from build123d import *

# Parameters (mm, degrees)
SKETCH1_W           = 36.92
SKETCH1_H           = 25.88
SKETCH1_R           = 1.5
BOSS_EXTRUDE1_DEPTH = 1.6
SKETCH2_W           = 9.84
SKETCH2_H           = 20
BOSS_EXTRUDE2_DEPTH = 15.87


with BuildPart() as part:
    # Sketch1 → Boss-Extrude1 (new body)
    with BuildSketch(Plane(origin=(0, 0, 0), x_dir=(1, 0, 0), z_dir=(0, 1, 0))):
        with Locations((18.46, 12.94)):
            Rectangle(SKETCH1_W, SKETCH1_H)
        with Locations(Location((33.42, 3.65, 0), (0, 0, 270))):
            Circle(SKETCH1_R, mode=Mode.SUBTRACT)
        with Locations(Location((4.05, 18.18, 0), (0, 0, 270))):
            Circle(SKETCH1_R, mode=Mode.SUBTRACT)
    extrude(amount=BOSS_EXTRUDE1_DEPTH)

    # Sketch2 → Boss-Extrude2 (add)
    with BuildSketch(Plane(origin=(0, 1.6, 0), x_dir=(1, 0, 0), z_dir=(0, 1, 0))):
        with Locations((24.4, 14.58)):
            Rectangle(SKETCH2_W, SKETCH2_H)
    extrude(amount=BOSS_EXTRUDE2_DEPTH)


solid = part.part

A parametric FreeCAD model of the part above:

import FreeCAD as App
import Part
import Sketcher
from FreeCAD import Vector
Q = App.Units.Quantity

doc = App.newDocument("Part")
body = doc.addObject("PartDesign::Body", "Body")

# Sketch on XZ plane
sketch1 = body.newObject("Sketcher::SketchObject", "Sketch")
sketch1.AttachmentSupport = (doc.getObject("XZ_Plane"), [""])
sketch1.MapMode = "FlatFace"
sketch1.addGeometry([
    Part.LineSegment(Vector(0, -25.9, 0), Vector(0, 0, 0)),  # 0
    Part.LineSegment(Vector(0, 0, 0), Vector(36.9, 0, 0)),  # 1
    Part.LineSegment(Vector(36.9, 0, 0), Vector(36.9, -25.9, 0)),  # 2
    Part.LineSegment(Vector(36.9, -25.9, 0), Vector(0, -25.9, 0)),  # 3
    Part.Circle(Vector(33.4, -3.6, 0), Vector(0, 0, 1), 1.5),  # 4
    Part.Circle(Vector(4, -18.2, 0), Vector(0, 0, 1), 1.5),  # 5
], False)
sketch1.addConstraint([
    Sketcher.Constraint("Coincident", 0, 2, 1, 1),
    Sketcher.Constraint("Coincident", 1, 2, 2, 1),
    Sketcher.Constraint("Coincident", 2, 2, 3, 1),
    Sketcher.Constraint("Coincident", 3, 2, 0, 1),
    Sketcher.Constraint("Vertical", 0),
    Sketcher.Constraint("Horizontal", 1),
    Sketcher.Constraint("Vertical", 2),
    Sketcher.Constraint("Horizontal", 3),
    Sketcher.Constraint("Coincident", 0, 2, -1, 1),
    Sketcher.Constraint("Equal", 4, 5),
    Sketcher.Constraint("Diameter", 4, Q("3 mm")),
    Sketcher.Constraint("DistanceX", 1, 1, 1, 2, Q("36.92 mm")),
    Sketcher.Constraint("DistanceY", 0, 1, 0, 2, Q("25.88 mm")),
    Sketcher.Constraint("DistanceX", 4, 3, 1, 2, Q("3.5 mm")),
    Sketcher.Constraint("DistanceY", 2, 2, 5, 3, Q("7.7 mm")),
    Sketcher.Constraint("DistanceY", 4, 3, -1, 1, Q("3.65 mm")),
    Sketcher.Constraint("DistanceX", -1, 1, 5, 3, Q("4.05 mm")),
])
pad1 = body.newObject("PartDesign::Pad", "Pad")
pad1.Profile = sketch1
pad1.Length = 1.6
pad1.Reversed = True

# Sketch on XZ plane
sketch2 = body.newObject("Sketcher::SketchObject", "Sketch001")
sketch2.AttachmentSupport = (doc.getObject("XZ_Plane"), [""])
sketch2.MapMode = "FlatFace"
sketch2.AttachmentOffset = App.Placement(Vector(0, 0, -1.6), App.Rotation())
sketch2.addGeometry([
    Part.LineSegment(Vector(19, -25, 0), Vector(19, -5, 0)),
    Part.LineSegment(Vector(19, -5, 0), Vector(29, -5, 0)),
    Part.LineSegment(Vector(29, -5, 0), Vector(29, -25, 0)),
    Part.LineSegment(Vector(29, -25, 0), Vector(19, -25, 0)),
], False)
sketch2.addConstraint([
    Sketcher.Constraint("Coincident", 0, 2, 1, 1),
    Sketcher.Constraint("Coincident", 1, 2, 2, 1),
    Sketcher.Constraint("Coincident", 2, 2, 3, 1),
    Sketcher.Constraint("Coincident", 3, 2, 0, 1),
    Sketcher.Constraint("Vertical", 0),
    Sketcher.Constraint("Horizontal", 1),
    Sketcher.Constraint("Vertical", 2),
    Sketcher.Constraint("Horizontal", 3),
    Sketcher.Constraint("DistanceY", 0, 1, 0, 2, Q("20 mm")),
    Sketcher.Constraint("DistanceX", 1, 1, 1, 2, Q("9.84 mm")),
    Sketcher.Constraint("DistanceX", -1, 1, 0, 2, Q("19.48 mm")),
    Sketcher.Constraint("DistanceY", 0, 2, -1, 1, Q("4.58 mm")),
])
pad2 = body.newObject("PartDesign::Pad", "Pad001")
pad2.Profile = sketch2
pad2.Length = 15.87
pad2.Reversed = True

doc.recompute()
